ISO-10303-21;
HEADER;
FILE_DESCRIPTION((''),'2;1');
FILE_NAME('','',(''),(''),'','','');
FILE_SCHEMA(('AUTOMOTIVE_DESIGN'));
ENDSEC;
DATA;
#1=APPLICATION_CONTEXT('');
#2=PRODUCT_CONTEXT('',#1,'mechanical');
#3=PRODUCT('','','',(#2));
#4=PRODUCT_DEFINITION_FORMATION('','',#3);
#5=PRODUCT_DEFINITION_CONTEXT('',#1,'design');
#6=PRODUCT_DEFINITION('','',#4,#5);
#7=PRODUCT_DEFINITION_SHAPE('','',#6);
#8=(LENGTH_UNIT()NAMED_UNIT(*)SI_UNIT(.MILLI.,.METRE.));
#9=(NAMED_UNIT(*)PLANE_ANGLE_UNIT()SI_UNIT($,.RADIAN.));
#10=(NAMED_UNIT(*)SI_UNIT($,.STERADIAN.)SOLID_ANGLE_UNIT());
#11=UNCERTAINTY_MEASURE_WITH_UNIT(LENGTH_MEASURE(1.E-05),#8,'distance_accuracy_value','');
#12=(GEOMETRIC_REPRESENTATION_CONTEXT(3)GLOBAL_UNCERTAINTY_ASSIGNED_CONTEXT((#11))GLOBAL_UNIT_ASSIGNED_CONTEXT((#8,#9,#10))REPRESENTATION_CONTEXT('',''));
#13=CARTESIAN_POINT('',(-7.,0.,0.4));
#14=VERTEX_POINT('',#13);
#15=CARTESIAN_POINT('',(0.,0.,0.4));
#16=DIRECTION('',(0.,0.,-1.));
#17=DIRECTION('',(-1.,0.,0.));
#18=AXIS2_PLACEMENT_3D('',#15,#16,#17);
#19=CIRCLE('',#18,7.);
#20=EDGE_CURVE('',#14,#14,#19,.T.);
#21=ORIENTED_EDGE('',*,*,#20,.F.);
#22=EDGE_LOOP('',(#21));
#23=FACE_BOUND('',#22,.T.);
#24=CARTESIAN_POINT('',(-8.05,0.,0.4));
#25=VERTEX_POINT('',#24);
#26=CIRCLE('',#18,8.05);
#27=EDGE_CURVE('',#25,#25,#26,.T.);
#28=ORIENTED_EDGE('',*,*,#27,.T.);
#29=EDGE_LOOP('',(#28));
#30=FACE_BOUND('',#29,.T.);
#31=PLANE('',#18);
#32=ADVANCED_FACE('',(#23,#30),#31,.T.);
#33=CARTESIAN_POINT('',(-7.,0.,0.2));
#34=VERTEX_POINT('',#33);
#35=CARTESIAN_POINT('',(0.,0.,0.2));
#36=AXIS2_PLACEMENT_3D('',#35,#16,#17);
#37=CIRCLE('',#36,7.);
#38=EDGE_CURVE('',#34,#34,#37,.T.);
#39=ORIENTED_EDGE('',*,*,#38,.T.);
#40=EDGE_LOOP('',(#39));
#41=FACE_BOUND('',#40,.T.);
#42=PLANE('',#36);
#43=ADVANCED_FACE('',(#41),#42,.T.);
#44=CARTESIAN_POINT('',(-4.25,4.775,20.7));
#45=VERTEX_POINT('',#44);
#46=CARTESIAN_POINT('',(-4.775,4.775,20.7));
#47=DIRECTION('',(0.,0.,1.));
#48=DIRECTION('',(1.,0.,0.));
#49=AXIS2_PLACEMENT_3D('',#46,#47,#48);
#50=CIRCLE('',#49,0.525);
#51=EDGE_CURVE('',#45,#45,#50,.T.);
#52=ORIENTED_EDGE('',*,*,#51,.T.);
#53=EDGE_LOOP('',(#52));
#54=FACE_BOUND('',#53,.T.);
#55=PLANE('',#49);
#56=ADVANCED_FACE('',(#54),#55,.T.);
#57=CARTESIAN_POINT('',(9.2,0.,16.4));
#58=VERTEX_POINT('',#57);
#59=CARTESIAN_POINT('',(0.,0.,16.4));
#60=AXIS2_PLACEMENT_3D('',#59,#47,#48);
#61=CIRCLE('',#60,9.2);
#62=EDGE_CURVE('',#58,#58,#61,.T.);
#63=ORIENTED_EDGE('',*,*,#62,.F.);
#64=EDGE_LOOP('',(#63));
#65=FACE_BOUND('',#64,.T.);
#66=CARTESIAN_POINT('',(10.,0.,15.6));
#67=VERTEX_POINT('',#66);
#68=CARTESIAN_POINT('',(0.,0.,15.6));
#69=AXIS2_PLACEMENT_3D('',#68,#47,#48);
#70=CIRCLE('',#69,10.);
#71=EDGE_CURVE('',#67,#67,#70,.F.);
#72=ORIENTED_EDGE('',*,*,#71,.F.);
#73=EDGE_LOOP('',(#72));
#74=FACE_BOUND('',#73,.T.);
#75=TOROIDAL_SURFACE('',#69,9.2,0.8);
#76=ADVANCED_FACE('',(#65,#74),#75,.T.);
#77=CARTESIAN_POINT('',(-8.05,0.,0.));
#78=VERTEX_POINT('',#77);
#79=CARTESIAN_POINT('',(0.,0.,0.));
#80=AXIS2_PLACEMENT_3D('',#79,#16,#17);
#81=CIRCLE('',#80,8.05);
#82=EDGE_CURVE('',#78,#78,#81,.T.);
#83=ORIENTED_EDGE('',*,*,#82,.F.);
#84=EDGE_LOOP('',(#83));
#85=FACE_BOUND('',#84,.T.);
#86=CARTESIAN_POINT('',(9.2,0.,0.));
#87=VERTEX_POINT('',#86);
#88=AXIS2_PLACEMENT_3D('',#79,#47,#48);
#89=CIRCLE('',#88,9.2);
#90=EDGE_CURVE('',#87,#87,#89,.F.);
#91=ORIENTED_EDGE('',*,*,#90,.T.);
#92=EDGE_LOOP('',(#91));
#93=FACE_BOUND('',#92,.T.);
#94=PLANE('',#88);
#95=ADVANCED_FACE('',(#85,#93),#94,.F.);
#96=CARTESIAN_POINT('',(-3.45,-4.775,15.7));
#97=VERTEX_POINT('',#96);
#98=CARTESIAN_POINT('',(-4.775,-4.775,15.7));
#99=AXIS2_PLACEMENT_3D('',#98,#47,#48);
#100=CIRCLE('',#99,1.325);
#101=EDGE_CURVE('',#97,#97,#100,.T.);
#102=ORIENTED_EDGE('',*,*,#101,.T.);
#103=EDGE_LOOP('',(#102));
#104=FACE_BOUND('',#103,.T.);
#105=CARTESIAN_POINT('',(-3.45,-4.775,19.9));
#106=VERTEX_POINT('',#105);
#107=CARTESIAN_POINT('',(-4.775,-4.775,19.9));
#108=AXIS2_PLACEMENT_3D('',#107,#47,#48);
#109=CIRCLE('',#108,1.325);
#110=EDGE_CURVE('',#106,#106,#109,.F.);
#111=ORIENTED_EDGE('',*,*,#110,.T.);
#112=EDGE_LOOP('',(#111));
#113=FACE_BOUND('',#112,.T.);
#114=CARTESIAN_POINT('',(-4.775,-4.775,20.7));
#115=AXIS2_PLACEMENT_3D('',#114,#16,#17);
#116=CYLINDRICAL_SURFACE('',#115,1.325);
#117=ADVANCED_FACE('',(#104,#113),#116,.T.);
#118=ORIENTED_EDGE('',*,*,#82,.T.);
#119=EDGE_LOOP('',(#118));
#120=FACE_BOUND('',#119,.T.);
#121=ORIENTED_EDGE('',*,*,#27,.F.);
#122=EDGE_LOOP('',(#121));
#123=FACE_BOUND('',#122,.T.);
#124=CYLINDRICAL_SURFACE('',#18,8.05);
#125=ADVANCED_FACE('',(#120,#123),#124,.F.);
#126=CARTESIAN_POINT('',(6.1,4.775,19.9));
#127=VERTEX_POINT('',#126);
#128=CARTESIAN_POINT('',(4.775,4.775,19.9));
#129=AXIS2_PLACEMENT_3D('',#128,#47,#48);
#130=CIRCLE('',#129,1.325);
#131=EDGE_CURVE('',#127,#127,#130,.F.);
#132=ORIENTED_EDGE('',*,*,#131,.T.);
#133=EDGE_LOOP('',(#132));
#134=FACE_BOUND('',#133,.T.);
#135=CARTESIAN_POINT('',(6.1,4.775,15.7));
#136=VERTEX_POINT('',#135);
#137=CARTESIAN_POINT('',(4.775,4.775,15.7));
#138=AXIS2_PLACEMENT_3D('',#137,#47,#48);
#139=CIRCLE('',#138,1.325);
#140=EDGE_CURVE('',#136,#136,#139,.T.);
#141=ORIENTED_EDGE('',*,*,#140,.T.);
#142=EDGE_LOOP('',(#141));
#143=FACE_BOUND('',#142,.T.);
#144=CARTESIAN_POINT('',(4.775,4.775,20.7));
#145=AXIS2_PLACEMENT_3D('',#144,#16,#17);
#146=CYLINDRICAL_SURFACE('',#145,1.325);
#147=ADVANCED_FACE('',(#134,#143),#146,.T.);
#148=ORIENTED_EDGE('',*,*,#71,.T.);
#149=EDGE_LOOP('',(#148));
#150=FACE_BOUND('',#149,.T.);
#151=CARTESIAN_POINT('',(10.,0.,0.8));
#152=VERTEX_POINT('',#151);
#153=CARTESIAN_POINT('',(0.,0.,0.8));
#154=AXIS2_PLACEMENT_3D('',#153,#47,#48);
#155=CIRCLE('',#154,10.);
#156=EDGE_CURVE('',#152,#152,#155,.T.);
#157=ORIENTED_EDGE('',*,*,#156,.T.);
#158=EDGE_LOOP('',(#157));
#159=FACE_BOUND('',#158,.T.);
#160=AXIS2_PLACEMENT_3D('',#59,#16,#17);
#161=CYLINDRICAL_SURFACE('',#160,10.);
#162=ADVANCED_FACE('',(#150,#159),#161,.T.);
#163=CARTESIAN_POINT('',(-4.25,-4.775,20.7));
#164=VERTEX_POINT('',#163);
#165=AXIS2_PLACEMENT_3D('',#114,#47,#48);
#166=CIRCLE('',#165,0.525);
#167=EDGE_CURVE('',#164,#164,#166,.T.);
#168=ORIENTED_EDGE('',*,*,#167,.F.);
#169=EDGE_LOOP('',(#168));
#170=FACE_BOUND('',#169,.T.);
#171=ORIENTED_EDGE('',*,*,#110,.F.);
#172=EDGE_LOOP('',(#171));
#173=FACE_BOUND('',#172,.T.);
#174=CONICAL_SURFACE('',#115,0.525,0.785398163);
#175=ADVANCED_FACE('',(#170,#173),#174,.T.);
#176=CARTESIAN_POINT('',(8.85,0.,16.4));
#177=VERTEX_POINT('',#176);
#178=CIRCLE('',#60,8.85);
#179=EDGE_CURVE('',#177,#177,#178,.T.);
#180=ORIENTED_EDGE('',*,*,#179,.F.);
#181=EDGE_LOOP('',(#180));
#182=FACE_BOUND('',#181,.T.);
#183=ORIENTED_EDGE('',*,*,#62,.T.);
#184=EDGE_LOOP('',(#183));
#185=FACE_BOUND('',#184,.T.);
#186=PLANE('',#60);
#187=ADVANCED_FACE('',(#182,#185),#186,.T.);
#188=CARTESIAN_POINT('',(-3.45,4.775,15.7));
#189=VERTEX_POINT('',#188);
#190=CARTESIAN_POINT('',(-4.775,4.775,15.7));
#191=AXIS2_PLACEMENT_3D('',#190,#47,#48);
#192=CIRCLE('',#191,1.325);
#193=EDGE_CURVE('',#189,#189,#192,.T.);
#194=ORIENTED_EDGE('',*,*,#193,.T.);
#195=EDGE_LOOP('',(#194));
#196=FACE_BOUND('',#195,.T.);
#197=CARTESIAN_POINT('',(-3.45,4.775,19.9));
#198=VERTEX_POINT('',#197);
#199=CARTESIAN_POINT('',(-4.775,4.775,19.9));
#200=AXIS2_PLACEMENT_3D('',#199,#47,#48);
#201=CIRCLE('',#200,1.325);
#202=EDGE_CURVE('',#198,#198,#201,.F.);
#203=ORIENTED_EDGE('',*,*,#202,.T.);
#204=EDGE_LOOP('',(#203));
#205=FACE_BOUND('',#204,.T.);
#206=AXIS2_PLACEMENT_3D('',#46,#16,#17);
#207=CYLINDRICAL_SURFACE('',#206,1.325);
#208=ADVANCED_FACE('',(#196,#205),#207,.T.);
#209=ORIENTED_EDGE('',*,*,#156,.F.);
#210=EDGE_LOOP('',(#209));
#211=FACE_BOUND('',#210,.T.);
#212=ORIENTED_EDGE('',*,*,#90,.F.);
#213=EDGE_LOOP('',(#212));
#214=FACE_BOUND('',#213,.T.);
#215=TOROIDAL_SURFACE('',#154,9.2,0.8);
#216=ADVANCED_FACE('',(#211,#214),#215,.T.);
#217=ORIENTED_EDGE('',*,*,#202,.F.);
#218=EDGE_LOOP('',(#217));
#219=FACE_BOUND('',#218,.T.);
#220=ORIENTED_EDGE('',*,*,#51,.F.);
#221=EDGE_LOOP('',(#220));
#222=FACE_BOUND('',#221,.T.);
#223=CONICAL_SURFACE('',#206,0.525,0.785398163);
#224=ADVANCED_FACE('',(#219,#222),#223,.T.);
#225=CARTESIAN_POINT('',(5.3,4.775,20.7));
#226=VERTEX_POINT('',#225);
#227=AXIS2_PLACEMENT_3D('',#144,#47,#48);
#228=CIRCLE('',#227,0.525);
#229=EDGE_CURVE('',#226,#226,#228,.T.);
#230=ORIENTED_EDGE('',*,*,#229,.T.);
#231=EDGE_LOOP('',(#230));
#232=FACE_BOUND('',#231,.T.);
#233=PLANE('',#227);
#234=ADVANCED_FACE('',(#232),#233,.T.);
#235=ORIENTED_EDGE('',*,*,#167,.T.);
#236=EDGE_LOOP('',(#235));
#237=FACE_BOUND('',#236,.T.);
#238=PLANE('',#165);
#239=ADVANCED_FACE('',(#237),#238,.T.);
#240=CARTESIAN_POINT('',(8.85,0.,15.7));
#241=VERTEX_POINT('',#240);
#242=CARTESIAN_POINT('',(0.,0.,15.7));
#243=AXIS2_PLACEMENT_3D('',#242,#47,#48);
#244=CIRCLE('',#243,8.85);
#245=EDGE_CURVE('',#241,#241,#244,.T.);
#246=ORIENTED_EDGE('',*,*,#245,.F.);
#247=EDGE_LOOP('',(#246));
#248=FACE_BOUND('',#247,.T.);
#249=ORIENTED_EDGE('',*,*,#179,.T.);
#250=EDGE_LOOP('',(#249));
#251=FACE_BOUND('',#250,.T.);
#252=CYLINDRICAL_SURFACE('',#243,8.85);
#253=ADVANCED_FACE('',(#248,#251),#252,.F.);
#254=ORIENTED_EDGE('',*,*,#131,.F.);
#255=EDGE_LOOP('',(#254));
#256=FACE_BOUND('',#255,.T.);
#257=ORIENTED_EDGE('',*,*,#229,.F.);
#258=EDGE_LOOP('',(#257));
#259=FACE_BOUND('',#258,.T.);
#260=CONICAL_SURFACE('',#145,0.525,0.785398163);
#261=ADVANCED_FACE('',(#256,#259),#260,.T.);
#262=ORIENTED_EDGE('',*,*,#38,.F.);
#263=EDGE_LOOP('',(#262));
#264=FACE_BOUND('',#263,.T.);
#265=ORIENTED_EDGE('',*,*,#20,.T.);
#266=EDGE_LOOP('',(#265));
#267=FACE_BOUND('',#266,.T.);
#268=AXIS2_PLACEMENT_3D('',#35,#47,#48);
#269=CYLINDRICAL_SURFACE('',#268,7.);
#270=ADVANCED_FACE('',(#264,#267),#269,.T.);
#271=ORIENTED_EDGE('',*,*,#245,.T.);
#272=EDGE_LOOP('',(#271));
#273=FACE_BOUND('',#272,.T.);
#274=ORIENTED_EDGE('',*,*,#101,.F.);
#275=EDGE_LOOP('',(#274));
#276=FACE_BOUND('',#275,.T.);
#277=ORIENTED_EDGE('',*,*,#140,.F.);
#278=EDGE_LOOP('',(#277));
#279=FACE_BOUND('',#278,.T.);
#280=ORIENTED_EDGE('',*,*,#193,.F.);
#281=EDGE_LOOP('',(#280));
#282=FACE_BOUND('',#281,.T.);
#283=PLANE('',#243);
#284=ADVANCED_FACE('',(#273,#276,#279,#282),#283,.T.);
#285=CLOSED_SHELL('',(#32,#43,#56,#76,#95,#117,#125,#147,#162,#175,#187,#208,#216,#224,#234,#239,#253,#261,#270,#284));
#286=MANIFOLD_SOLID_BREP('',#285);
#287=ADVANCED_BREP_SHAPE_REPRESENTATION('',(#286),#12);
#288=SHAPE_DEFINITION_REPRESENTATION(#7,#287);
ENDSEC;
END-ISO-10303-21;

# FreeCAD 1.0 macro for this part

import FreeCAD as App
import Part
import Sketcher
Q = App.Units.Quantity


def edges_at(feature, points):
    """Names of the edges that pass closest to the given points."""
    edges = feature.Shape.Edges
    near = lambda p: min(range(len(edges)), key=lambda i: edges[i].distToShape(Part.Vertex(*p))[0])
    return sorted({f"Edge{near(p) + 1}" for p in points})

doc = App.newDocument("Part")
body = doc.addObject("PartDesign::Body", "Body")

# Sketch on XY plane
sketch1 = body.newObject("Sketcher::SketchObject", "Sketch")
sketch1.AttachmentSupport = (doc.getObject("XY_Plane"), [""])
sketch1.MapMode = "FlatFace"
sketch1.addGeometry(Part.Circle(App.Vector(0, 0, 0), App.Vector(0, 0, 1), 10), False)
sketch1.addConstraint([
    Sketcher.Constraint("Coincident", 0, 3, -1, 1),
    Sketcher.Constraint("Diameter", 0, Q("20 mm")),
])
pad1 = body.newObject("PartDesign::Pad", "Pad")
pad1.Profile = sketch1
pad1.Length = 16.4

# Sketch on XY plane
sketch2 = body.newObject("Sketcher::SketchObject", "Sketch001")
sketch2.AttachmentSupport = (doc.getObject("XY_Plane"), [""])
sketch2.MapMode = "FlatFace"
sketch2.AttachmentOffset = App.Placement(App.Vector(0, 0, 16.4), App.Rotation())
sketch2.addGeometry(Part.Circle(App.Vector(0, 0, 0), App.Vector(0, 0, 1), 8.85), False)
sketch2.addConstraint([
    Sketcher.Constraint("Coincident", 0, 3, -1, 1),
    Sketcher.Constraint("Diameter", 0, Q("17.7 mm")),
])
pocket1 = body.newObject("PartDesign::Pocket", "Pocket")
pocket1.Profile = sketch2
pocket1.Length = 0.7

# Sketch on XY plane
sketch3 = body.newObject("Sketcher::SketchObject", "Sketch002")
sketch3.AttachmentSupport = (doc.getObject("XY_Plane"), [""])
sketch3.MapMode = "FlatFace"
sketch3.AttachmentOffset = App.Placement(App.Vector(0, 0, 15.7), App.Rotation())
sketch3.addGeometry([
    Part.Circle(App.Vector(-4.775, 4.775, 0), App.Vector(0, 0, 1), 1.325),
    Part.Circle(App.Vector(-4.775, -4.775, 0), App.Vector(0, 0, 1), 1.325),
    Part.Circle(App.Vector(4.775, 4.775, 0), App.Vector(0, 0, 1), 1.325),
], False)
sketch3.addConstraint([
    Sketcher.Constraint("Equal", 0, 1),
    Sketcher.Constraint("Equal", 1, 2),
    Sketcher.Constraint("Symmetric", 1, 3, 2, 3, -1, 1),
    Sketcher.Constraint("Symmetric", 0, 3, 2, 3, -2),
    Sketcher.Constraint("Diameter", 0, Q("2.65 mm")),
    Sketcher.Constraint("DistanceY", 1, 3, 0, 3, Q("9.55 mm")),
    Sketcher.Constraint("DistanceX", 0, 3, 2, 3, Q("9.55 mm")),
])
pad2 = body.newObject("PartDesign::Pad", "Pad001")
pad2.Profile = sketch3
pad2.Length = 5
doc.recompute()

chamfer = body.newObject("PartDesign::Chamfer", "Chamfer")
chamfer.Base = (pad2, edges_at(pad2, [(-6.1, 4.775, 20.7), (-6.1, -4.775, 20.7), (3.45, 4.775, 20.7)]))
chamfer.Size = 0.8

# Sketch on XY plane
sketch4 = body.newObject("Sketcher::SketchObject", "Sketch003")
sketch4.AttachmentSupport = (doc.getObject("XY_Plane"), [""])
sketch4.MapMode = "FlatFace"
sketch4.addGeometry(Part.Circle(App.Vector(0, 0, 0), App.Vector(0, 0, 1), 8.05), False)
sketch4.addConstraint([
    Sketcher.Constraint("Coincident", 0, 3, -1, 1),
    Sketcher.Constraint("Diameter", 0, Q("16.1 mm")),
])
pocket2 = body.newObject("PartDesign::Pocket", "Pocket001")
pocket2.Profile = sketch4
pocket2.Length = 0.4
pocket2.Reversed = True
doc.recompute()

fillet = body.newObject("PartDesign::Fillet", "Fillet")
fillet.Base = (pocket2, edges_at(pocket2, [(-10, 0, 0), (-10, 0, 16.4)]))
fillet.Radius = 0.8

# Sketch on XY plane
sketch5 = body.newObject("Sketcher::SketchObject", "Sketch004")
sketch5.AttachmentSupport = (doc.getObject("XY_Plane"), [""])
sketch5.MapMode = "FlatFace"
sketch5.AttachmentOffset = App.Placement(App.Vector(0, 0, 0.4), App.Rotation())
sketch5.addGeometry(Part.Circle(App.Vector(0, 0, 0), App.Vector(0, 0, 1), 7), False)
sketch5.addConstraint([
    Sketcher.Constraint("Coincident", 0, 3, -1, 1),
    Sketcher.Constraint("Diameter", 0, Q("14 mm")),
])
pad3 = body.newObject("PartDesign::Pad", "Pad002")
pad3.Profile = sketch5
pad3.Length = 0.2
pad3.Reversed = True

doc.recompute()
